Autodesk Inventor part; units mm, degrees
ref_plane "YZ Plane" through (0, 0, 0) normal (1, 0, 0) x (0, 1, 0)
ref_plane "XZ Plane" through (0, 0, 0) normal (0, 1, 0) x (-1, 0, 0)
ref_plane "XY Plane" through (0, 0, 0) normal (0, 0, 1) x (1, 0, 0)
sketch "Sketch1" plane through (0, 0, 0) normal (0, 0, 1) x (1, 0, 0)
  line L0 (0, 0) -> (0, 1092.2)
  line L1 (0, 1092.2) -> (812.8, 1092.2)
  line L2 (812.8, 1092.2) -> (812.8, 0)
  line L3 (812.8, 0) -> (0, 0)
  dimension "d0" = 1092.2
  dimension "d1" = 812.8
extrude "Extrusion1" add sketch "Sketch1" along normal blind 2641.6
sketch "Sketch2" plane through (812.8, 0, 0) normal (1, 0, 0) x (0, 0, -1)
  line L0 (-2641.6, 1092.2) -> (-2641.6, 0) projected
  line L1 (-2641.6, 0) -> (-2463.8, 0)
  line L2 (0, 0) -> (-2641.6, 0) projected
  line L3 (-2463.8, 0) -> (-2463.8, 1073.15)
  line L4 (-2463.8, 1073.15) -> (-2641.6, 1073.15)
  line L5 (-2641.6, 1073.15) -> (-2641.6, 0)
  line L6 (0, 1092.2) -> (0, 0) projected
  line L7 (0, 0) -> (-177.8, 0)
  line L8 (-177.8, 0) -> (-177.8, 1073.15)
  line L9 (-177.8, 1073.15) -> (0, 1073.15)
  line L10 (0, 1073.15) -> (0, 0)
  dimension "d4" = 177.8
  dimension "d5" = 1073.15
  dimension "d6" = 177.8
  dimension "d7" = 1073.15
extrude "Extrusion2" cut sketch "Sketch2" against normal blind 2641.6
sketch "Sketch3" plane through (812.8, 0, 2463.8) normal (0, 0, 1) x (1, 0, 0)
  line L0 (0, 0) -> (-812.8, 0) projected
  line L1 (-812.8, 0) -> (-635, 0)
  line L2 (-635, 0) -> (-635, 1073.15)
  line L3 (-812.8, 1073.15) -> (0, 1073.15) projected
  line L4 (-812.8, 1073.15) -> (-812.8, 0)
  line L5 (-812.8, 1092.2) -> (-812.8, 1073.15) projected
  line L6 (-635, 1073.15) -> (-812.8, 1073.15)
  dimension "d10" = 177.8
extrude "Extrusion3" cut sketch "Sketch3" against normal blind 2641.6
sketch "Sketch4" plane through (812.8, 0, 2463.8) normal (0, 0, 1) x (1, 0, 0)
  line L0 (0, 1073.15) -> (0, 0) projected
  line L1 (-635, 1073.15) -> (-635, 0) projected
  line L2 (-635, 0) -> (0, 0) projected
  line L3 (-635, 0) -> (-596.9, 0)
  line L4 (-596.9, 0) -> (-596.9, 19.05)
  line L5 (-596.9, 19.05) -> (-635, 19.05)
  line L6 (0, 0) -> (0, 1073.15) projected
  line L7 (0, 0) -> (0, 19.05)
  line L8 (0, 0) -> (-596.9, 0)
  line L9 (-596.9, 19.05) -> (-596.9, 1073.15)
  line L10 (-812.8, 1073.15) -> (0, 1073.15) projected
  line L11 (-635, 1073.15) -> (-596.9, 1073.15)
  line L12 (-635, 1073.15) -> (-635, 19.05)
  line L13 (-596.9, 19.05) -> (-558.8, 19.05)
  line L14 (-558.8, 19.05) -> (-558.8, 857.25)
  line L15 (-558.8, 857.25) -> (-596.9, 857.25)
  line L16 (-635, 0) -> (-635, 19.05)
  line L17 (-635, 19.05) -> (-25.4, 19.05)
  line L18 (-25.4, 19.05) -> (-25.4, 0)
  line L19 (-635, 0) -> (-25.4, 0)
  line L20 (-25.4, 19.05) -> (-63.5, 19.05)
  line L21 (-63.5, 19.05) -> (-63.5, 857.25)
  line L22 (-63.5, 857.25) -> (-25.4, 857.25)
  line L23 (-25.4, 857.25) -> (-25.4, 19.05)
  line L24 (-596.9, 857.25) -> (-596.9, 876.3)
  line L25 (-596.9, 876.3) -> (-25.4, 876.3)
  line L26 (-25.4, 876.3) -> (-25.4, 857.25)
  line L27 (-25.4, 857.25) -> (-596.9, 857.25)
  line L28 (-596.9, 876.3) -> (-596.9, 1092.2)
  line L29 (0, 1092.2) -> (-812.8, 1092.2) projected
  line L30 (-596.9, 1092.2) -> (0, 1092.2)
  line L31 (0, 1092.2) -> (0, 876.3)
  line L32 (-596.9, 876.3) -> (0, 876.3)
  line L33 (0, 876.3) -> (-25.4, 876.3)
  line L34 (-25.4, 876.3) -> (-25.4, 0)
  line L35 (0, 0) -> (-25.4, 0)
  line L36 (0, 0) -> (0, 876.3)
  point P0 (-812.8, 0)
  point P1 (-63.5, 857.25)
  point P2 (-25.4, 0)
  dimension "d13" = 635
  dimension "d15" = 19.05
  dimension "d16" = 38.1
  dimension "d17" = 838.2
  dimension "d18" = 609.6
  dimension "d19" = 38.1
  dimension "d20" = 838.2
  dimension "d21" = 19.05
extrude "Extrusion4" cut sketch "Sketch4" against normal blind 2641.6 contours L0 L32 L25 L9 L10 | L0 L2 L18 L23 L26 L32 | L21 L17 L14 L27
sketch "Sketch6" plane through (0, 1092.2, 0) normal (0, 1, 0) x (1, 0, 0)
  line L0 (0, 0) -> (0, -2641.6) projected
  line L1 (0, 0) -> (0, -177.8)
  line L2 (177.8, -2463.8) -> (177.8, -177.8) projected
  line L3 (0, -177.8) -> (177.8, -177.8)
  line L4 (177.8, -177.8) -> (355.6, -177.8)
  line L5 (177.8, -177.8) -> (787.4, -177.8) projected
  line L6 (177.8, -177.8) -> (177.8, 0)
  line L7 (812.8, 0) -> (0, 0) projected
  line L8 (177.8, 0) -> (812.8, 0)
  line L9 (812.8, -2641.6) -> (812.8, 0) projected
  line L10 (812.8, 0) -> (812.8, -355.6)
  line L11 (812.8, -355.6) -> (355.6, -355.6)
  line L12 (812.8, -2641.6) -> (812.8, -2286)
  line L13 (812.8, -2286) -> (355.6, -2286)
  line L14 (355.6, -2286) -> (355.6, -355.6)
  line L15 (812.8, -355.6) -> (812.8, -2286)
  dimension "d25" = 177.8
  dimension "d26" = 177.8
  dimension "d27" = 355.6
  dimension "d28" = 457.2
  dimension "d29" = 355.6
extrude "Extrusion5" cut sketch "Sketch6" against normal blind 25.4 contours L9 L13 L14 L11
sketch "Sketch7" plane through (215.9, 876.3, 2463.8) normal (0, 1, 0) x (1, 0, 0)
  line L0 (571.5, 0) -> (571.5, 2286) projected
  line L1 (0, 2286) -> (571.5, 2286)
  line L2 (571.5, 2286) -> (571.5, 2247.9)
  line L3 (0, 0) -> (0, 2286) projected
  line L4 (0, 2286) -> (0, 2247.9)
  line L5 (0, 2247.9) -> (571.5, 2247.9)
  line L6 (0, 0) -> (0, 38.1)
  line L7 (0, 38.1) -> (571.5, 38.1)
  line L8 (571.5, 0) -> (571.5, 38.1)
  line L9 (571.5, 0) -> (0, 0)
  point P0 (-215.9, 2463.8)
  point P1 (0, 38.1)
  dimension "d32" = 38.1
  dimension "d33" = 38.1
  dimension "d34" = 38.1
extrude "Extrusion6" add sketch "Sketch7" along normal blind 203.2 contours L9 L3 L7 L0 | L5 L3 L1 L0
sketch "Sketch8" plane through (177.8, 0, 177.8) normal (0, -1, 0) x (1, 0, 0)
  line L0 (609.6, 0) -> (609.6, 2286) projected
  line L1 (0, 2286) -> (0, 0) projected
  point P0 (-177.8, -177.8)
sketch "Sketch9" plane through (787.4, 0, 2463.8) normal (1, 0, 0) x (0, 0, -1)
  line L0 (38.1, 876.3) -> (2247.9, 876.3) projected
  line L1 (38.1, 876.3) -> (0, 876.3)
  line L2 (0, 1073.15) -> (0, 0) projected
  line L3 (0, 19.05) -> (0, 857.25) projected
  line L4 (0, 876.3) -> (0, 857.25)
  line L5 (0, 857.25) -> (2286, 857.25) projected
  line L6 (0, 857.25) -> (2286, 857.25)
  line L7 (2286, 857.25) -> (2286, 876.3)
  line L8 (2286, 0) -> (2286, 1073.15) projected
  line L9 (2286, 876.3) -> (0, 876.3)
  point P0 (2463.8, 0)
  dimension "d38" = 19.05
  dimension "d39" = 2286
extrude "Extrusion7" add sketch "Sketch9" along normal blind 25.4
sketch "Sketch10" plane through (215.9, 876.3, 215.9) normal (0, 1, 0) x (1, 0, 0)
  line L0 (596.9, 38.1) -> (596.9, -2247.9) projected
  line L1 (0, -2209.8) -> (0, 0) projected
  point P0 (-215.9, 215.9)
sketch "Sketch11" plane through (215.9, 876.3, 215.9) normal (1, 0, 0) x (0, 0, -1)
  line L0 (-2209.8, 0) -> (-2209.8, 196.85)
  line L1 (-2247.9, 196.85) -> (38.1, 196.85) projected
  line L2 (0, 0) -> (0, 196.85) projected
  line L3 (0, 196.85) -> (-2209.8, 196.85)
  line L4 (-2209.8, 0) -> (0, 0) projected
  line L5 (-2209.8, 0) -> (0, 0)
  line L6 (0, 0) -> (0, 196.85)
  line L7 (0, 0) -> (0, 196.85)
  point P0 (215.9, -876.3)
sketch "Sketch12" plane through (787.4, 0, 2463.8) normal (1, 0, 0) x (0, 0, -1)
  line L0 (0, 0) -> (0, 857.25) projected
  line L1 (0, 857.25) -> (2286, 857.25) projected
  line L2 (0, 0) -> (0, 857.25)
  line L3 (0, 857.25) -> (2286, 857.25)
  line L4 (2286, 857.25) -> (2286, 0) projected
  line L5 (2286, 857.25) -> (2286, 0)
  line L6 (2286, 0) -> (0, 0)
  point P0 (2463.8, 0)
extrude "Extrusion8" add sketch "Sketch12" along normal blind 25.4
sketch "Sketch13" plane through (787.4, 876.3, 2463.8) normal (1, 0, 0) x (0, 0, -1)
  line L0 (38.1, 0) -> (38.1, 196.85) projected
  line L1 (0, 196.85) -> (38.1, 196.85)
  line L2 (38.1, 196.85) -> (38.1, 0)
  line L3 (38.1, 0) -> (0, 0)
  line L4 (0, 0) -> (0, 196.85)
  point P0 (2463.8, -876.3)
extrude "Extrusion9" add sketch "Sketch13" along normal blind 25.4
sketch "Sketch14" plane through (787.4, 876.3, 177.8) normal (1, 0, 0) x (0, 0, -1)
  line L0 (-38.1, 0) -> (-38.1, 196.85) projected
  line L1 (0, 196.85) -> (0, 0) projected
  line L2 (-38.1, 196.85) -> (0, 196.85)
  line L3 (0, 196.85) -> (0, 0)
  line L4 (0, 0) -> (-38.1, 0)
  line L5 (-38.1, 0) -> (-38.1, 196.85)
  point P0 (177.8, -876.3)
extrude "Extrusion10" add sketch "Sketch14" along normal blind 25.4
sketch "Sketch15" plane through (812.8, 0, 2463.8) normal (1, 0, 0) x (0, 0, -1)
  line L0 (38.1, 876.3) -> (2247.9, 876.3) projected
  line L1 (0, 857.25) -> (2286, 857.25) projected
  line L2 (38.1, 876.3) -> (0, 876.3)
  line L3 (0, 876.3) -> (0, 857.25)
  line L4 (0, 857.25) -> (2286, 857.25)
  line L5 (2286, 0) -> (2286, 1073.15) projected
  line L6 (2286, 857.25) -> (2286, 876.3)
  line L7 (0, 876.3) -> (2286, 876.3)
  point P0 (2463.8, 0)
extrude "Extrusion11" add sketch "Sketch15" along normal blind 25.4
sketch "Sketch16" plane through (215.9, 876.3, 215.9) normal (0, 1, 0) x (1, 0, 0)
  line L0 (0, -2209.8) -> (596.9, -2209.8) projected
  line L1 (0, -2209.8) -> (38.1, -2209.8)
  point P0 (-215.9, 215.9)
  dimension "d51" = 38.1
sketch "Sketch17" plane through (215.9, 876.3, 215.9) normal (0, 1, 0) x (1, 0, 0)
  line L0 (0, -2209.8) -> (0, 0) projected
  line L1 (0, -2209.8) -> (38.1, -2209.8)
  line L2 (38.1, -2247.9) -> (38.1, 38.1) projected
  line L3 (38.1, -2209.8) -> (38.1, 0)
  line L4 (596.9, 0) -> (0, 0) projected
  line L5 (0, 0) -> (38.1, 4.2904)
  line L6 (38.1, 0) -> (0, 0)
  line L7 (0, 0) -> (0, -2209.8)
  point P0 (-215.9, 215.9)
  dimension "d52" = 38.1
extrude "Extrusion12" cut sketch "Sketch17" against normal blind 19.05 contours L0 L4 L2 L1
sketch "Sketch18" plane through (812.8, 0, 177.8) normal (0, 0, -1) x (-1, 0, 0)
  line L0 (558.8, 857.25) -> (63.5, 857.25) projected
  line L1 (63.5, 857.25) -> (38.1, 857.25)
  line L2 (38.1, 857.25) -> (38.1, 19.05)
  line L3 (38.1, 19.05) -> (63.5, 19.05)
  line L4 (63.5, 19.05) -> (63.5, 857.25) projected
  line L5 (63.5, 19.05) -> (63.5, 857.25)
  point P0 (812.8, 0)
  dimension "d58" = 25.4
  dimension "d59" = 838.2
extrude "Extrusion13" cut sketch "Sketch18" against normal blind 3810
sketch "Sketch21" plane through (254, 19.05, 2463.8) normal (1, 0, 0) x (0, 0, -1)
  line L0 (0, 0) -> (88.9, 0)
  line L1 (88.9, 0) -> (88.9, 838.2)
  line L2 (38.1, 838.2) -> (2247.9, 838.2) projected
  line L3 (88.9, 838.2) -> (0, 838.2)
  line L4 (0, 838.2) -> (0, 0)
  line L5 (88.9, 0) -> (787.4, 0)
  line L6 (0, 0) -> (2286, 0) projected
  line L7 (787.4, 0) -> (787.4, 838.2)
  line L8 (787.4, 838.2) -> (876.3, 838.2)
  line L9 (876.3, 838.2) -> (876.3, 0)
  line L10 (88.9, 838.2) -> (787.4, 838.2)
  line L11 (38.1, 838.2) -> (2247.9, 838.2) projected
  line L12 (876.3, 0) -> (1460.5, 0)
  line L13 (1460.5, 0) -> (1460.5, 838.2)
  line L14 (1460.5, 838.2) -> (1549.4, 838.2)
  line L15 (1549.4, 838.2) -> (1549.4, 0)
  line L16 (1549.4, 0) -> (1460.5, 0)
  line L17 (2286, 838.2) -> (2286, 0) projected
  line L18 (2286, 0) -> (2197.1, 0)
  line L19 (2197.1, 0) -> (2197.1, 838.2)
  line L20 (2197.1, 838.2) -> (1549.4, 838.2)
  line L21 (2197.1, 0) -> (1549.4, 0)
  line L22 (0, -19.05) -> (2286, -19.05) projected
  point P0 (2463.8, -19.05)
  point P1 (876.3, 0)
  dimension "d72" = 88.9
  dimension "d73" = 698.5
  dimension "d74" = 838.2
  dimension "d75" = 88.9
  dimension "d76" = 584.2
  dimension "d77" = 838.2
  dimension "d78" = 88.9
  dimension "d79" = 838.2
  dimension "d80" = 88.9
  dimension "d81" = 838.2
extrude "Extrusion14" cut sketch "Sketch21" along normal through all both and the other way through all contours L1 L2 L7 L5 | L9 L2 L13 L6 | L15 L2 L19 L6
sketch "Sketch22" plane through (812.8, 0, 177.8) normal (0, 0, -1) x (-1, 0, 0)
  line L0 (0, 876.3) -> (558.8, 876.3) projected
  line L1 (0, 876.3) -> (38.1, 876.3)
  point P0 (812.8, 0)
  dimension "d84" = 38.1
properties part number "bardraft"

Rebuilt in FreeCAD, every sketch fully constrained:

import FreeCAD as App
import Part
import Sketcher
from FreeCAD import Vector
Q = App.Units.Quantity


def add_polygon(sketch, points):
    """Adds a closed chain of lines whose ends are joined by coincident constraints."""
    first, n = sketch.GeometryCount, len(points)
    for a, b in zip(points, points[1:] + points[:1]):
        sketch.addGeometry(Part.LineSegment(App.Vector(*a, 0), App.Vector(*b, 0)), False)
    for i in range(n):
        sketch.addConstraint(Sketcher.Constraint("Coincident", first + i, 2, first + (i + 1) % n, 1))

doc = App.newDocument("Part")
params = doc.addObject("Spreadsheet::Sheet", "Params")
for row, (alias, value) in enumerate([
    ("sketch1_width", "32 in"),
    ("sketch1_height", "43 in"),
    ("pad1_length", "104 in"),
    ("sketch2_height", "7 in"),
    ("sketch2_width", "42.25 in"),
    ("pocket1_length", "104 in"),
    ("sketch3_width", "7 in"),
    ("sketch3_height", "42.25 in"),
    ("pocket2_length", "104 in"),
    ("sketch4_height", "33 in"),
    ("sketch4_width", "1 in"),
    ("sketch4_width2", "23.5 in"),
    ("sketch4_height2", "7.75 in"),
    ("pocket3_length", "104 in"),
    ("sketch5_width", "18 in"),
    ("sketch5_height", "76 in"),
    ("pocket4_length", "1 in"),
    ("sketch6_height", "1.5 in"),
    ("sketch6_width", "22.5 in"),
    ("pad2_length", "8 in"),
    ("sketch7_height", "90 in"),
    ("sketch7_width", "0.75 in"),
    ("pad3_length", "1 in"),
    ("sketch8_height", "90 in"),
    ("sketch8_width", "33.75 in"),
    ("pad4_length", "1 in"),
    ("sketch9_height", "1.5 in"),
    ("sketch9_width", "7.75 in"),
    ("pad5_length", "1 in"),
    ("sketch10_height", "1.5 in"),
    ("sketch10_width", "7.75 in"),
    ("pad6_length", "1 in"),
    ("sketch11_height", "90 in"),
    ("sketch11_width", "0.75 in"),
    ("pad7_length", "1 in"),
    ("sketch12_width", "1.5 in"),
    ("sketch12_height", "87 in"),
    ("pocket5_length", "0.75 in"),
    ("sketch13_width", "1 in"),
    ("sketch13_height", "33 in"),
    ("pocket6_length", "150 in"),
    ("sketch14_width", "33 in"),
    ("sketch14_height", "23 in"),
    ("sketch14_height2", "27.5 in"),
    ("sketch14_height3", "25.5 in"),
], start=1):
    params.set(f"A{row}", alias)
    params.set(f"B{row}", "=" + value)
    params.setAlias(f"B{row}", alias)

body = doc.addObject("PartDesign::Body", "Body")

# Sketch on XY plane
sketch1 = body.newObject("Sketcher::SketchObject", "Sketch")
sketch1.AttachmentSupport = (doc.getObject("XY_Plane"), [""])
sketch1.MapMode = "FlatFace"
add_polygon(sketch1, [(0, 1092), (0, 0), (813, 0), (813, 1092)])  # lines 0-3
sketch1.addConstraint([
    Sketcher.Constraint("Vertical", 0),
    Sketcher.Constraint("Horizontal", 1),
    Sketcher.Constraint("Vertical", 2),
    Sketcher.Constraint("Horizontal", 3),
    Sketcher.Constraint("Coincident", 0, 2, -1, 1),
    Sketcher.Constraint("DistanceX", 1, 1, 1, 2, Q("32 in")),
    Sketcher.Constraint("DistanceY", 0, 2, 0, 1, Q("43 in")),
])
sketch1.setExpression("Constraints[9]", "Params.sketch1_width")
sketch1.setExpression("Constraints[10]", "Params.sketch1_height")
pad1 = body.newObject("PartDesign::Pad", "Pad")
pad1.Profile = sketch1
pad1.setExpression("Length", "Params.pad1_length")

# Sketch on YZ plane
sketch2 = body.newObject("Sketcher::SketchObject", "Sketch001")
sketch2.AttachmentSupport = (doc.getObject("YZ_Plane"), [""])
sketch2.MapMode = "FlatFace"
sketch2.AttachmentOffset = App.Placement(Vector(0, 0, 32 * 25.4), App.Rotation())
add_polygon(sketch2, [(1073, 2464), (1073, 2642), (0, 2642), (0, 2464)])  # lines 0-3
add_polygon(sketch2, [(1073, 178), (0, 178), (0, 0), (1073, 0)])  # lines 4-7
sketch2.addConstraint([
    Sketcher.Constraint("Vertical", 0),
    Sketcher.Constraint("Horizontal", 1),
    Sketcher.Constraint("Vertical", 2),
    Sketcher.Constraint("Horizontal", 3),
    Sketcher.Constraint("Horizontal", 4),
    Sketcher.Constraint("Vertical", 5),
    Sketcher.Constraint("Horizontal", 6),
    Sketcher.Constraint("Vertical", 7),
    Sketcher.Constraint("Coincident", 5, 2, -1, 1),
    Sketcher.Constraint("PointOnObject", 1, 2, -2),
    Sketcher.Constraint("Vertical", 3, 2, 6, 2),
    Sketcher.Constraint("Equal", 2, 5),
    Sketcher.Constraint("DistanceY", 0, 1, 0, 2, Q("7 in")),
    Sketcher.Constraint("DistanceX", 1, 2, 1, 1, Q("42.25 in")),
    Sketcher.Constraint("DistanceY", -1, 1, 0, 2, Q("104 in")),
])
sketch2.setExpression("Constraints[20]", "Params.sketch2_height")
sketch2.setExpression("Constraints[21]", "Params.sketch2_width")
pocket1 = body.newObject("PartDesign::Pocket", "Pocket")
pocket1.Profile = sketch2
pocket1.setExpression("Length", "Params.pocket1_length")

# Sketch on XY plane
sketch3 = body.newObject("Sketcher::SketchObject", "Sketch002")
sketch3.AttachmentSupport = (doc.getObject("XY_Plane"), [""])
sketch3.MapMode = "FlatFace"
sketch3.AttachmentOffset = App.Placement(Vector(0, 0, 97 * 25.4), App.Rotation())
add_polygon(sketch3, [(0, 0), (178, 0), (178, 1073), (0, 1073)])  # lines 0-3
sketch3.addConstraint([
    Sketcher.Constraint("Horizontal", 0),
    Sketcher.Constraint("Vertical", 1),
    Sketcher.Constraint("Horizontal", 2),
    Sketcher.Constraint("Vertical", 3),
    Sketcher.Constraint("Coincident", 3, 2, -1, 1),
    Sketcher.Constraint("DistanceX", 0, 1, 0, 2, Q("7 in")),
    Sketcher.Constraint("DistanceY", 1, 1, 1, 2, Q("42.25 in")),
])
sketch3.setExpression("Constraints[9]", "Params.sketch3_width")
sketch3.setExpression("Constraints[10]", "Params.sketch3_height")
pocket2 = body.newObject("PartDesign::Pocket", "Pocket001")
pocket2.Profile = sketch3
pocket2.setExpression("Length", "Params.pocket2_length")

# Sketch on XY plane
sketch4 = body.newObject("Sketcher::SketchObject", "Sketch003")
sketch4.AttachmentSupport = (doc.getObject("XY_Plane"), [""])
sketch4.MapMode = "FlatFace"
sketch4.AttachmentOffset = App.Placement(Vector(0, 0, 97 * 25.4), App.Rotation())
add_polygon(sketch4, [(813, 1073), (216, 1073), (216, 876), (787, 876), (787, 0), (813, 0)])  # lines 0-5
add_polygon(sketch4, [(749, 19), (749, 857), (254, 857), (254, 19)])  # lines 6-9
sketch4.addConstraint([
    Sketcher.Constraint("Horizontal", 0),
    Sketcher.Constraint("Vertical", 1),
    Sketcher.Constraint("Horizontal", 2),
    Sketcher.Constraint("Vertical", 3),
    Sketcher.Constraint("Horizontal", 4),
    Sketcher.Constraint("Vertical", 5),
    Sketcher.Constraint("Vertical", 6),
    Sketcher.Constraint("Horizontal", 7),
    Sketcher.Constraint("Vertical", 8),
    Sketcher.Constraint("Horizontal", 9),
    Sketcher.Constraint("PointOnObject", 3, 2, -1),
    Sketcher.Constraint("DistanceY", 6, 1, 6, 2, Q("33 in")),
    Sketcher.Constraint("DistanceX", 6, 2, 2, 2, Q("1.5 in")),
    Sketcher.Constraint("DistanceX", 1, 2, 7, 2, Q("1.5 in")),
    Sketcher.Constraint("DistanceX", 4, 1, 4, 2, Q("1 in")),
    Sketcher.Constraint("DistanceY", -1, 1, 8, 2, Q("0.75 in")),
    Sketcher.Constraint("DistanceY", 6, 2, 2, 2, Q("0.75 in")),
    Sketcher.Constraint("DistanceX", 0, 2, 0, 1, Q("23.5 in")),
    Sketcher.Constraint("DistanceX", -1, 1, 2, 2, Q("31 in")),
    Sketcher.Constraint("DistanceY", 1, 2, 1, 1, Q("7.75 in")),
])
sketch4.setExpression("Constraints[21]", "Params.sketch4_height")
sketch4.setExpression("Constraints[24]", "Params.sketch4_width")
sketch4.setExpression("Constraints[27]", "Params.sketch4_width2")
sketch4.setExpression("Constraints[29]", "Params.sketch4_height2")
pocket3 = body.newObject("PartDesign::Pocket", "Pocket002")
pocket3.Profile = sketch4
pocket3.setExpression("Length", "Params.pocket3_length")

# Sketch on XZ plane
sketch5 = body.newObject("Sketcher::SketchObject", "Sketch004")
sketch5.AttachmentSupport = (doc.getObject("XZ_Plane"), [""])
sketch5.MapMode = "FlatFace"
sketch5.AttachmentOffset = App.Placement(Vector(0, 0, -43 * 25.4), App.Rotation())
add_polygon(sketch5, [(813, 2286), (813, 356), (356, 356), (356, 2286)])  # lines 0-3
sketch5.addConstraint([
    Sketcher.Constraint("Vertical", 0),
    Sketcher.Constraint("Horizontal", 1),
    Sketcher.Constraint("Vertical", 2),
    Sketcher.Constraint("Horizontal", 3),
    Sketcher.Constraint("DistanceX", 1, 2, 1, 1, Q("18 in")),
    Sketcher.Constraint("DistanceY", -1, 1, 0, 2, Q("14 in")),
    Sketcher.Constraint("DistanceX", -1, 1, 1, 2, Q("14 in")),
    Sketcher.Constraint("DistanceY", 0, 2, 0, 1, Q("76 in")),
])
sketch5.setExpression("Constraints[8]", "Params.sketch5_width")
sketch5.setExpression("Constraints[11]", "Params.sketch5_height")
pocket4 = body.newObject("PartDesign::Pocket", "Pocket003")
pocket4.Profile = sketch5
pocket4.setExpression("Length", "Params.pocket4_length")
pocket4.Reversed = True

# Sketch on XZ plane
sketch6 = body.newObject("Sketcher::SketchObject", "Sketch005")
sketch6.AttachmentSupport = (doc.getObject("XZ_Plane"), [""])
sketch6.MapMode = "FlatFace"
sketch6.AttachmentOffset = App.Placement(Vector(0, 0, -34.5 * 25.4), App.Rotation())
add_polygon(sketch6, [(216, 2464), (787, 2464), (787, 2426), (216, 2426)])  # lines 0-3
add_polygon(sketch6, [(216, 216), (787, 216), (787, 178), (216, 178)])  # lines 4-7
sketch6.addConstraint([
    Sketcher.Constraint("Horizontal", 0),
    Sketcher.Constraint("Vertical", 1),
    Sketcher.Constraint("Horizontal", 2),
    Sketcher.Constraint("Vertical", 3),
    Sketcher.Constraint("Horizontal", 4),
    Sketcher.Constraint("Vertical", 5),
    Sketcher.Constraint("Horizontal", 6),
    Sketcher.Constraint("Vertical", 7),
    Sketcher.Constraint("Vertical", 1, 2, 4, 2),
    Sketcher.Constraint("Vertical", 3, 2, 6, 2),
    Sketcher.Constraint("Equal", 3, 5),
    Sketcher.Constraint("DistanceY", 1, 2, 1, 1, Q("1.5 in")),
    Sketcher.Constraint("DistanceX", 0, 1, 0, 2, Q("22.5 in")),
    Sketcher.Constraint("DistanceX", -1, 1, 0, 2, Q("31 in")),
    Sketcher.Constraint("DistanceY", -1, 1, 0, 2, Q("97 in")),
    Sketcher.Constraint("DistanceY", -1, 1, 5, 2, Q("7 in")),
])
sketch6.setExpression("Constraints[19]", "Params.sketch6_height")
sketch6.setExpression("Constraints[20]", "Params.sketch6_width")
pad2 = body.newObject("PartDesign::Pad", "Pad001")
pad2.Profile = sketch6
pad2.setExpression("Length", "Params.pad2_length")
pad2.Reversed = True

# Sketch on YZ plane
sketch7 = body.newObject("Sketcher::SketchObject", "Sketch006")
sketch7.AttachmentSupport = (doc.getObject("YZ_Plane"), [""])
sketch7.MapMode = "FlatFace"
sketch7.AttachmentOffset = App.Placement(Vector(0, 0, 31 * 25.4), App.Rotation())
add_polygon(sketch7, [(876, 178), (876, 2464), (857, 2464), (857, 178)])  # lines 0-3
sketch7.addConstraint([
    Sketcher.Constraint("Vertical", 0),
    Sketcher.Constraint("Horizontal", 1),
    Sketcher.Constraint("Vertical", 2),
    Sketcher.Constraint("Horizontal", 3),
    Sketcher.Constraint("DistanceY", 0, 1, 0, 2, Q("90 in")),
    Sketcher.Constraint("DistanceX", 1, 2, 1, 1, Q("0.75 in")),
    Sketcher.Constraint("DistanceY", -1, 1, 0, 2, Q("97 in")),
    Sketcher.Constraint("DistanceX", -1, 1, 0, 2, Q("34.5 in")),
])
sketch7.setExpression("Constraints[8]", "Params.sketch7_height")
sketch7.setExpression("Constraints[9]", "Params.sketch7_width")
pad3 = body.newObject("PartDesign::Pad", "Pad002")
pad3.Profile = sketch7
pad3.setExpression("Length", "Params.pad3_length")

# Sketch on YZ plane
sketch8 = body.newObject("Sketcher::SketchObject", "Sketch007")
sketch8.AttachmentSupport = (doc.getObject("YZ_Plane"), [""])
sketch8.MapMode = "FlatFace"
sketch8.AttachmentOffset = App.Placement(Vector(0, 0, 31 * 25.4), App.Rotation())
add_polygon(sketch8, [(857, 2464), (0, 2464), (0, 178), (857, 178)])  # lines 0-3
sketch8.addConstraint([
    Sketcher.Constraint("Horizontal", 0),
    Sketcher.Constraint("Vertical", 1),
    Sketcher.Constraint("Horizontal", 2),
    Sketcher.Constraint("Vertical", 3),
    Sketcher.Constraint("PointOnObject", 0, 2, -2),
    Sketcher.Constraint("DistanceY", 1, 2, 1, 1, Q("90 in")),
    Sketcher.Constraint("DistanceY", -1, 1, 0, 2, Q("97 in")),
    Sketcher.Constraint("DistanceX", 0, 2, 0, 1, Q("33.75 in")),
])
sketch8.setExpression("Constraints[9]", "Params.sketch8_height")
sketch8.setExpression("Constraints[11]", "Params.sketch8_width")
pad4 = body.newObject("PartDesign::Pad", "Pad003")
pad4.Profile = sketch8
pad4.setExpression("Length", "Params.pad4_length")

# Sketch on YZ plane
sketch9 = body.newObject("Sketcher::SketchObject", "Sketch008")
sketch9.AttachmentSupport = (doc.getObject("YZ_Plane"), [""])
sketch9.MapMode = "FlatFace"
sketch9.AttachmentOffset = App.Placement(Vector(0, 0, 31 * 25.4), App.Rotation())
add_polygon(sketch9, [(876, 2464), (876, 2426), (1073, 2426), (1073, 2464)])  # lines 0-3
sketch9.addConstraint([
    Sketcher.Constraint("Vertical", 0),
    Sketcher.Constraint("Horizontal", 1),
    Sketcher.Constraint("Vertical", 2),
    Sketcher.Constraint("Horizontal", 3),
    Sketcher.Constraint("DistanceY", 0, 2, 0, 1, Q("1.5 in")),
    Sketcher.Constraint("DistanceY", -1, 1, 2, 2, Q("97 in")),
    Sketcher.Constraint("DistanceX", 1, 1, 1, 2, Q("7.75 in")),
    Sketcher.Constraint("DistanceX", -1, 1, 0, 2, Q("34.5 in")),
])
sketch9.setExpression("Constraints[8]", "Params.sketch9_height")
sketch9.setExpression("Constraints[10]", "Params.sketch9_width")
pad5 = body.newObject("PartDesign::Pad", "Pad004")
pad5.Profile = sketch9
pad5.setExpression("Length", "Params.pad5_length")

# Sketch on YZ plane
sketch10 = body.newObject("Sketcher::SketchObject", "Sketch009")
sketch10.AttachmentSupport = (doc.getObject("YZ_Plane"), [""])
sketch10.MapMode = "FlatFace"
sketch10.AttachmentOffset = App.Placement(Vector(0, 0, 31 * 25.4), App.Rotation())
add_polygon(sketch10, [(1073, 216), (876, 216), (876, 178), (1073, 178)])  # lines 0-3
sketch10.addConstraint([
    Sketcher.Constraint("Horizontal", 0),
    Sketcher.Constraint("Vertical", 1),
    Sketcher.Constraint("Horizontal", 2),
    Sketcher.Constraint("Vertical", 3),
    Sketcher.Constraint("DistanceY", 1, 2, 1, 1, Q("1.5 in")),
    Sketcher.Constraint("DistanceY", -1, 1, 1, 2, Q("7 in")),
    Sketcher.Constraint("DistanceX", 0, 2, 0, 1, Q("7.75 in")),
    Sketcher.Constraint("DistanceX", -1, 1, 0, 2, Q("34.5 in")),
])
sketch10.setExpression("Constraints[8]", "Params.sketch10_height")
sketch10.setExpression("Constraints[10]", "Params.sketch10_width")
pad6 = body.newObject("PartDesign::Pad", "Pad005")
pad6.Profile = sketch10
pad6.setExpression("Length", "Params.pad6_length")

# Sketch on YZ plane
sketch11 = body.newObject("Sketcher::SketchObject", "Sketch010")
sketch11.AttachmentSupport = (doc.getObject("YZ_Plane"), [""])
sketch11.MapMode = "FlatFace"
sketch11.AttachmentOffset = App.Placement(Vector(0, 0, 32 * 25.4), App.Rotation())
add_polygon(sketch11, [(876, 178), (876, 2464), (857, 2464), (857, 178)])  # lines 0-3
sketch11.addConstraint([
    Sketcher.Constraint("Vertical", 0),
    Sketcher.Constraint("Horizontal", 1),
    Sketcher.Constraint("Vertical", 2),
    Sketcher.Constraint("Horizontal", 3),
    Sketcher.Constraint("DistanceY", 0, 1, 0, 2, Q("90 in")),
    Sketcher.Constraint("DistanceY", -1, 1, 0, 2, Q("97 in")),
    Sketcher.Constraint("DistanceX", 1, 2, 1, 1, Q("0.75 in")),
    Sketcher.Constraint("DistanceX", -1, 1, 0, 2, Q("34.5 in")),
])
sketch11.setExpression("Constraints[8]", "Params.sketch11_height")
sketch11.setExpression("Constraints[10]", "Params.sketch11_width")
pad7 = body.newObject("PartDesign::Pad", "Pad006")
pad7.Profile = sketch11
pad7.setExpression("Length", "Params.pad7_length")

# Sketch on XZ plane
sketch12 = body.newObject("Sketcher::SketchObject", "Sketch011")
sketch12.AttachmentSupport = (doc.getObject("XZ_Plane"), [""])
sketch12.MapMode = "FlatFace"
sketch12.AttachmentOffset = App.Placement(Vector(0, 0, -34.5 * 25.4), App.Rotation())
add_polygon(sketch12, [(216, 216), (216, 2426), (254, 2426), (254, 216)])  # lines 0-3
sketch12.addConstraint([
    Sketcher.Constraint("Vertical", 0),
    Sketcher.Constraint("Horizontal", 1),
    Sketcher.Constraint("Vertical", 2),
    Sketcher.Constraint("Horizontal", 3),
    Sketcher.Constraint("DistanceX", 1, 1, 1, 2, Q("1.5 in")),
    Sketcher.Constraint("DistanceY", 0, 1, 0, 2, Q("87 in")),
    Sketcher.Constraint("DistanceX", -1, 1, 1, 2, Q("10 in")),
    Sketcher.Constraint("DistanceY", -1, 1, 0, 2, Q("95.5 in")),
])
sketch12.setExpression("Constraints[8]", "Params.sketch12_width")
sketch12.setExpression("Constraints[9]", "Params.sketch12_height")
pocket5 = body.newObject("PartDesign::Pocket", "Pocket004")
pocket5.Profile = sketch12
pocket5.setExpression("Length", "Params.pocket5_length")
pocket5.Reversed = True

# Sketch on XY plane
sketch13 = body.newObject("Sketcher::SketchObject", "Sketch012")
sketch13.AttachmentSupport = (doc.getObject("XY_Plane"), [""])
sketch13.MapMode = "FlatFace"
sketch13.AttachmentOffset = App.Placement(Vector(0, 0, 7 * 25.4), App.Rotation())
add_polygon(sketch13, [(749, 19), (749, 857), (775, 857), (775, 19)])  # lines 0-3
sketch13.addConstraint([
    Sketcher.Constraint("Vertical", 0),
    Sketcher.Constraint("Horizontal", 1),
    Sketcher.Constraint("Vertical", 2),
    Sketcher.Constraint("Horizontal", 3),
    Sketcher.Constraint("DistanceX", 1, 1, 1, 2, Q("1 in")),
    Sketcher.Constraint("DistanceY", 0, 1, 0, 2, Q("33 in")),
    Sketcher.Constraint("DistanceX", -1, 1, 0, 2, Q("29.5 in")),
    Sketcher.Constraint("DistanceY", -1, 1, 0, 2, Q("33.75 in")),
])
sketch13.setExpression("Constraints[8]", "Params.sketch13_width")
sketch13.setExpression("Constraints[9]", "Params.sketch13_height")
pocket6 = body.newObject("PartDesign::Pocket", "Pocket005")
pocket6.Profile = sketch13
pocket6.setExpression("Length", "Params.pocket6_length")
pocket6.Reversed = True

# Sketch on YZ plane
sketch14 = body.newObject("Sketcher::SketchObject", "Sketch013")
sketch14.AttachmentSupport = (doc.getObject("YZ_Plane"), [""])
sketch14.MapMode = "FlatFace"
sketch14.AttachmentOffset = App.Placement(Vector(0, 0, 10 * 25.4), App.Rotation())
add_polygon(sketch14, [(857, 2375), (19, 2375), (19, 1676), (857, 1676)])  # lines 0-3
add_polygon(sketch14, [(857, 1588), (19, 1588), (19, 1003), (857, 1003)])  # lines 4-7
add_polygon(sketch14, [(857, 914), (19, 914), (19, 267), (857, 267)])  # lines 8-11
sketch14.addConstraint([
    Sketcher.Constraint("Horizontal", 0),
    Sketcher.Constraint("Vertical", 1),
    Sketcher.Constraint("Horizontal", 2),
    Sketcher.Constraint("Vertical", 3),
    Sketcher.Constraint("Horizontal", 4),
    Sketcher.Constraint("Vertical", 5),
    Sketcher.Constraint("Horizontal", 6),
    Sketcher.Constraint("Vertical", 7),
    Sketcher.Constraint("Horizontal", 8),
    Sketcher.Constraint("Vertical", 9),
    Sketcher.Constraint("Horizontal", 10),
    Sketcher.Constraint("Vertical", 11),
    Sketcher.Constraint("Vertical", 1, 2, 4, 2),
    Sketcher.Constraint("Vertical", 3, 2, 6, 2),
    Sketcher.Constraint("Vertical", 5, 2, 8, 2),
    Sketcher.Constraint("Vertical", 7, 2, 10, 2),
    Sketcher.Constraint("DistanceX", 0, 2, 0, 1, Q("33 in")),
    Sketcher.Constraint("DistanceY", 5, 2, 5, 1, Q("23 in")),
    Sketcher.Constraint("DistanceY", 1, 2, 1, 1, Q("27.5 in")),
    Sketcher.Constraint("DistanceY", 4, 2, 1, 2, Q("3.5 in")),
    Sketcher.Constraint("DistanceY", 8, 2, 5, 2, Q("3.5 in")),
    Sketcher.Constraint("DistanceY", 9, 2, 9, 1, Q("25.5 in")),
    Sketcher.Constraint("DistanceY", -1, 1, 1, 2, Q("66 in")),
    Sketcher.Constraint("DistanceX", -1, 1, 0, 2, Q("0.75 in")),
])
sketch14.setExpression("Constraints[28]", "Params.sketch14_width")
sketch14.setExpression("Constraints[29]", "Params.sketch14_height")
sketch14.setExpression("Constraints[30]", "Params.sketch14_height2")
sketch14.setExpression("Constraints[33]", "Params.sketch14_height3")
pocket7 = body.newObject("PartDesign::Pocket", "Pocket006")
pocket7.Profile = sketch14
pocket7.Type = "ThroughAll"
pocket7.Midplane = True

doc.recompute()
